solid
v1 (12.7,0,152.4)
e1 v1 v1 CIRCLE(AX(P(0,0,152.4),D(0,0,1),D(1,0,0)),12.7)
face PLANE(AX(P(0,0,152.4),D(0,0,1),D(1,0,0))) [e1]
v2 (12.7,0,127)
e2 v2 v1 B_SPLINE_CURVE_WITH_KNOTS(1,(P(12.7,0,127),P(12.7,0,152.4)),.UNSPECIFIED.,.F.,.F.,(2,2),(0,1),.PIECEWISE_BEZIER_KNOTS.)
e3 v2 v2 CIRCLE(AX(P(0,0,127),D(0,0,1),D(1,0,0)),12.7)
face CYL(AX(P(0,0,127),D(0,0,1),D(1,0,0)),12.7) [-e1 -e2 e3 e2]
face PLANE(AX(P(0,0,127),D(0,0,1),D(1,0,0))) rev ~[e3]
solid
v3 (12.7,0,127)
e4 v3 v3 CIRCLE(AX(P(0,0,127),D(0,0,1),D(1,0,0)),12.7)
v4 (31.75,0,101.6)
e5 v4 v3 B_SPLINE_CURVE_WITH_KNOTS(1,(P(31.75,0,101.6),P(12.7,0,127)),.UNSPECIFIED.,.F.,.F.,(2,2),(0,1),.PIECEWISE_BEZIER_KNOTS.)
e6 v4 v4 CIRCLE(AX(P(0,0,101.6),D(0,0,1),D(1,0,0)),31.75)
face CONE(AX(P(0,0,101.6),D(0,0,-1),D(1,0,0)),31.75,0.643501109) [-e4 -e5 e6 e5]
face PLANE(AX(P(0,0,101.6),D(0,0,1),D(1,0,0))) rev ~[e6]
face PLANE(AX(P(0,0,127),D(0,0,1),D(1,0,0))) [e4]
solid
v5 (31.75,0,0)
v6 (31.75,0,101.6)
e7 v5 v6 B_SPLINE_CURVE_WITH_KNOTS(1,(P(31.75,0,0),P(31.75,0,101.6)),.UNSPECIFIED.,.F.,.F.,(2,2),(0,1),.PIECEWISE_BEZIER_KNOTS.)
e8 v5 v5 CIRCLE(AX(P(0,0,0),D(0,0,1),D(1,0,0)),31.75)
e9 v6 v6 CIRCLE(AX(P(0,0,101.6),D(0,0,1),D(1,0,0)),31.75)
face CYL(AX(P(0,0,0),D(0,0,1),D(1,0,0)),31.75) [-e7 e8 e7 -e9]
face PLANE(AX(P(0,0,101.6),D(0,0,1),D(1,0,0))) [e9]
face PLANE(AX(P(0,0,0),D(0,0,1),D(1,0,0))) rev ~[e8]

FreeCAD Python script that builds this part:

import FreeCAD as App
import Part
import Sketcher
Q = App.Units.Quantity

doc = App.newDocument("Part")
body = doc.addObject("PartDesign::Body", "Body")

sketch1 = body.newObject("Sketcher::SketchObject", "Sketch")
sketch1.AttachmentSupport = (doc.getObject("XY_Plane"), [""])
sketch1.MapMode = "FlatFace"
sketch1.AttachmentOffset = App.Placement(App.Vector(0, 0, 5 * 25.4), App.Rotation())
sketch1.addGeometry(Part.Circle(App.Vector(0, 0, 0), App.Vector(0, 0, 1), 13), False)
sketch1.addConstraint(Sketcher.Constraint("Coincident", 0, 3, -1, 1))
sketch1.addConstraint(Sketcher.Constraint("Diameter", 0, Q("1 in")))

sketch2 = body.newObject("Sketcher::SketchObject", "Sketch001")
sketch2.AttachmentSupport = (doc.getObject("XY_Plane"), [""])
sketch2.MapMode = "FlatFace"
sketch2.AttachmentOffset = App.Placement(App.Vector(0, 0, 6 * 25.4), App.Rotation())
sketch2.addGeometry(Part.Circle(App.Vector(0, 0, 0), App.Vector(0, 0, 1), 13), False)
sketch2.addConstraint(Sketcher.Constraint("Coincident", 0, 3, -1, 1))
sketch2.addConstraint(Sketcher.Constraint("Diameter", 0, Q("1 in")))

additiveloft = body.newObject("PartDesign::AdditiveLoft", "AdditiveLoft")
additiveloft.Profile = sketch1
additiveloft.Sections = [sketch2]
body2 = doc.addObject("PartDesign::Body", "Body001")

sketch3 = body2.newObject("Sketcher::SketchObject", "Sketch002")
sketch3.AttachmentSupport = (doc.getObject("XY_Plane001"), [""])
sketch3.MapMode = "FlatFace"
sketch3.addGeometry(Part.Circle(App.Vector(0, 0, 0), App.Vector(0, 0, 1), 32), False)
sketch3.addConstraint(Sketcher.Constraint("Coincident", 0, 3, -1, 1))
sketch3.addConstraint(Sketcher.Constraint("Diameter", 0, Q("2.5 in")))

sketch4 = body2.newObject("Sketcher::SketchObject", "Sketch003")
sketch4.AttachmentSupport = (doc.getObject("XY_Plane001"), [""])
sketch4.MapMode = "FlatFace"
sketch4.AttachmentOffset = App.Placement(App.Vector(0, 0, 4 * 25.4), App.Rotation())
sketch4.addGeometry(Part.Circle(App.Vector(0, 0, 0), App.Vector(0, 0, 1), 32), False)
sketch4.addConstraint(Sketcher.Constraint("Coincident", 0, 3, -1, 1))
sketch4.addConstraint(Sketcher.Constraint("Diameter", 0, Q("2.5 in")))

additiveloft2 = body2.newObject("PartDesign::AdditiveLoft", "AdditiveLoft001")
additiveloft2.Profile = sketch3
additiveloft2.Sections = [sketch4]
body3 = doc.addObject("PartDesign::Body", "Body002")

sketch5 = body3.newObject("Sketcher::SketchObject", "Sketch004")
sketch5.AttachmentSupport = (doc.getObject("XY_Plane002"), [""])
sketch5.MapMode = "FlatFace"
sketch5.AttachmentOffset = App.Placement(App.Vector(0, 0, 4 * 25.4), App.Rotation())
sketch5.addGeometry(Part.Circle(App.Vector(0, 0, 0), App.Vector(0, 0, 1), 32), False)
sketch5.addConstraint(Sketcher.Constraint("Coincident", 0, 3, -1, 1))
sketch5.addConstraint(Sketcher.Constraint("Diameter", 0, Q("2.5 in")))

sketch6 = body3.newObject("Sketcher::SketchObject", "Sketch005")
sketch6.AttachmentSupport = (doc.getObject("XY_Plane002"), [""])
sketch6.MapMode = "FlatFace"
sketch6.AttachmentOffset = App.Placement(App.Vector(0, 0, 5 * 25.4), App.Rotation())
sketch6.addGeometry(Part.Circle(App.Vector(0, 0, 0), App.Vector(0, 0, 1), 13), False)
sketch6.addConstraint(Sketcher.Constraint("Coincident", 0, 3, -1, 1))
sketch6.addConstraint(Sketcher.Constraint("Diameter", 0, Q("1 in")))

additiveloft3 = body3.newObject("PartDesign::AdditiveLoft", "AdditiveLoft002")
additiveloft3.Profile = sketch5
additiveloft3.Sections = [sketch6]

doc.recompute()
